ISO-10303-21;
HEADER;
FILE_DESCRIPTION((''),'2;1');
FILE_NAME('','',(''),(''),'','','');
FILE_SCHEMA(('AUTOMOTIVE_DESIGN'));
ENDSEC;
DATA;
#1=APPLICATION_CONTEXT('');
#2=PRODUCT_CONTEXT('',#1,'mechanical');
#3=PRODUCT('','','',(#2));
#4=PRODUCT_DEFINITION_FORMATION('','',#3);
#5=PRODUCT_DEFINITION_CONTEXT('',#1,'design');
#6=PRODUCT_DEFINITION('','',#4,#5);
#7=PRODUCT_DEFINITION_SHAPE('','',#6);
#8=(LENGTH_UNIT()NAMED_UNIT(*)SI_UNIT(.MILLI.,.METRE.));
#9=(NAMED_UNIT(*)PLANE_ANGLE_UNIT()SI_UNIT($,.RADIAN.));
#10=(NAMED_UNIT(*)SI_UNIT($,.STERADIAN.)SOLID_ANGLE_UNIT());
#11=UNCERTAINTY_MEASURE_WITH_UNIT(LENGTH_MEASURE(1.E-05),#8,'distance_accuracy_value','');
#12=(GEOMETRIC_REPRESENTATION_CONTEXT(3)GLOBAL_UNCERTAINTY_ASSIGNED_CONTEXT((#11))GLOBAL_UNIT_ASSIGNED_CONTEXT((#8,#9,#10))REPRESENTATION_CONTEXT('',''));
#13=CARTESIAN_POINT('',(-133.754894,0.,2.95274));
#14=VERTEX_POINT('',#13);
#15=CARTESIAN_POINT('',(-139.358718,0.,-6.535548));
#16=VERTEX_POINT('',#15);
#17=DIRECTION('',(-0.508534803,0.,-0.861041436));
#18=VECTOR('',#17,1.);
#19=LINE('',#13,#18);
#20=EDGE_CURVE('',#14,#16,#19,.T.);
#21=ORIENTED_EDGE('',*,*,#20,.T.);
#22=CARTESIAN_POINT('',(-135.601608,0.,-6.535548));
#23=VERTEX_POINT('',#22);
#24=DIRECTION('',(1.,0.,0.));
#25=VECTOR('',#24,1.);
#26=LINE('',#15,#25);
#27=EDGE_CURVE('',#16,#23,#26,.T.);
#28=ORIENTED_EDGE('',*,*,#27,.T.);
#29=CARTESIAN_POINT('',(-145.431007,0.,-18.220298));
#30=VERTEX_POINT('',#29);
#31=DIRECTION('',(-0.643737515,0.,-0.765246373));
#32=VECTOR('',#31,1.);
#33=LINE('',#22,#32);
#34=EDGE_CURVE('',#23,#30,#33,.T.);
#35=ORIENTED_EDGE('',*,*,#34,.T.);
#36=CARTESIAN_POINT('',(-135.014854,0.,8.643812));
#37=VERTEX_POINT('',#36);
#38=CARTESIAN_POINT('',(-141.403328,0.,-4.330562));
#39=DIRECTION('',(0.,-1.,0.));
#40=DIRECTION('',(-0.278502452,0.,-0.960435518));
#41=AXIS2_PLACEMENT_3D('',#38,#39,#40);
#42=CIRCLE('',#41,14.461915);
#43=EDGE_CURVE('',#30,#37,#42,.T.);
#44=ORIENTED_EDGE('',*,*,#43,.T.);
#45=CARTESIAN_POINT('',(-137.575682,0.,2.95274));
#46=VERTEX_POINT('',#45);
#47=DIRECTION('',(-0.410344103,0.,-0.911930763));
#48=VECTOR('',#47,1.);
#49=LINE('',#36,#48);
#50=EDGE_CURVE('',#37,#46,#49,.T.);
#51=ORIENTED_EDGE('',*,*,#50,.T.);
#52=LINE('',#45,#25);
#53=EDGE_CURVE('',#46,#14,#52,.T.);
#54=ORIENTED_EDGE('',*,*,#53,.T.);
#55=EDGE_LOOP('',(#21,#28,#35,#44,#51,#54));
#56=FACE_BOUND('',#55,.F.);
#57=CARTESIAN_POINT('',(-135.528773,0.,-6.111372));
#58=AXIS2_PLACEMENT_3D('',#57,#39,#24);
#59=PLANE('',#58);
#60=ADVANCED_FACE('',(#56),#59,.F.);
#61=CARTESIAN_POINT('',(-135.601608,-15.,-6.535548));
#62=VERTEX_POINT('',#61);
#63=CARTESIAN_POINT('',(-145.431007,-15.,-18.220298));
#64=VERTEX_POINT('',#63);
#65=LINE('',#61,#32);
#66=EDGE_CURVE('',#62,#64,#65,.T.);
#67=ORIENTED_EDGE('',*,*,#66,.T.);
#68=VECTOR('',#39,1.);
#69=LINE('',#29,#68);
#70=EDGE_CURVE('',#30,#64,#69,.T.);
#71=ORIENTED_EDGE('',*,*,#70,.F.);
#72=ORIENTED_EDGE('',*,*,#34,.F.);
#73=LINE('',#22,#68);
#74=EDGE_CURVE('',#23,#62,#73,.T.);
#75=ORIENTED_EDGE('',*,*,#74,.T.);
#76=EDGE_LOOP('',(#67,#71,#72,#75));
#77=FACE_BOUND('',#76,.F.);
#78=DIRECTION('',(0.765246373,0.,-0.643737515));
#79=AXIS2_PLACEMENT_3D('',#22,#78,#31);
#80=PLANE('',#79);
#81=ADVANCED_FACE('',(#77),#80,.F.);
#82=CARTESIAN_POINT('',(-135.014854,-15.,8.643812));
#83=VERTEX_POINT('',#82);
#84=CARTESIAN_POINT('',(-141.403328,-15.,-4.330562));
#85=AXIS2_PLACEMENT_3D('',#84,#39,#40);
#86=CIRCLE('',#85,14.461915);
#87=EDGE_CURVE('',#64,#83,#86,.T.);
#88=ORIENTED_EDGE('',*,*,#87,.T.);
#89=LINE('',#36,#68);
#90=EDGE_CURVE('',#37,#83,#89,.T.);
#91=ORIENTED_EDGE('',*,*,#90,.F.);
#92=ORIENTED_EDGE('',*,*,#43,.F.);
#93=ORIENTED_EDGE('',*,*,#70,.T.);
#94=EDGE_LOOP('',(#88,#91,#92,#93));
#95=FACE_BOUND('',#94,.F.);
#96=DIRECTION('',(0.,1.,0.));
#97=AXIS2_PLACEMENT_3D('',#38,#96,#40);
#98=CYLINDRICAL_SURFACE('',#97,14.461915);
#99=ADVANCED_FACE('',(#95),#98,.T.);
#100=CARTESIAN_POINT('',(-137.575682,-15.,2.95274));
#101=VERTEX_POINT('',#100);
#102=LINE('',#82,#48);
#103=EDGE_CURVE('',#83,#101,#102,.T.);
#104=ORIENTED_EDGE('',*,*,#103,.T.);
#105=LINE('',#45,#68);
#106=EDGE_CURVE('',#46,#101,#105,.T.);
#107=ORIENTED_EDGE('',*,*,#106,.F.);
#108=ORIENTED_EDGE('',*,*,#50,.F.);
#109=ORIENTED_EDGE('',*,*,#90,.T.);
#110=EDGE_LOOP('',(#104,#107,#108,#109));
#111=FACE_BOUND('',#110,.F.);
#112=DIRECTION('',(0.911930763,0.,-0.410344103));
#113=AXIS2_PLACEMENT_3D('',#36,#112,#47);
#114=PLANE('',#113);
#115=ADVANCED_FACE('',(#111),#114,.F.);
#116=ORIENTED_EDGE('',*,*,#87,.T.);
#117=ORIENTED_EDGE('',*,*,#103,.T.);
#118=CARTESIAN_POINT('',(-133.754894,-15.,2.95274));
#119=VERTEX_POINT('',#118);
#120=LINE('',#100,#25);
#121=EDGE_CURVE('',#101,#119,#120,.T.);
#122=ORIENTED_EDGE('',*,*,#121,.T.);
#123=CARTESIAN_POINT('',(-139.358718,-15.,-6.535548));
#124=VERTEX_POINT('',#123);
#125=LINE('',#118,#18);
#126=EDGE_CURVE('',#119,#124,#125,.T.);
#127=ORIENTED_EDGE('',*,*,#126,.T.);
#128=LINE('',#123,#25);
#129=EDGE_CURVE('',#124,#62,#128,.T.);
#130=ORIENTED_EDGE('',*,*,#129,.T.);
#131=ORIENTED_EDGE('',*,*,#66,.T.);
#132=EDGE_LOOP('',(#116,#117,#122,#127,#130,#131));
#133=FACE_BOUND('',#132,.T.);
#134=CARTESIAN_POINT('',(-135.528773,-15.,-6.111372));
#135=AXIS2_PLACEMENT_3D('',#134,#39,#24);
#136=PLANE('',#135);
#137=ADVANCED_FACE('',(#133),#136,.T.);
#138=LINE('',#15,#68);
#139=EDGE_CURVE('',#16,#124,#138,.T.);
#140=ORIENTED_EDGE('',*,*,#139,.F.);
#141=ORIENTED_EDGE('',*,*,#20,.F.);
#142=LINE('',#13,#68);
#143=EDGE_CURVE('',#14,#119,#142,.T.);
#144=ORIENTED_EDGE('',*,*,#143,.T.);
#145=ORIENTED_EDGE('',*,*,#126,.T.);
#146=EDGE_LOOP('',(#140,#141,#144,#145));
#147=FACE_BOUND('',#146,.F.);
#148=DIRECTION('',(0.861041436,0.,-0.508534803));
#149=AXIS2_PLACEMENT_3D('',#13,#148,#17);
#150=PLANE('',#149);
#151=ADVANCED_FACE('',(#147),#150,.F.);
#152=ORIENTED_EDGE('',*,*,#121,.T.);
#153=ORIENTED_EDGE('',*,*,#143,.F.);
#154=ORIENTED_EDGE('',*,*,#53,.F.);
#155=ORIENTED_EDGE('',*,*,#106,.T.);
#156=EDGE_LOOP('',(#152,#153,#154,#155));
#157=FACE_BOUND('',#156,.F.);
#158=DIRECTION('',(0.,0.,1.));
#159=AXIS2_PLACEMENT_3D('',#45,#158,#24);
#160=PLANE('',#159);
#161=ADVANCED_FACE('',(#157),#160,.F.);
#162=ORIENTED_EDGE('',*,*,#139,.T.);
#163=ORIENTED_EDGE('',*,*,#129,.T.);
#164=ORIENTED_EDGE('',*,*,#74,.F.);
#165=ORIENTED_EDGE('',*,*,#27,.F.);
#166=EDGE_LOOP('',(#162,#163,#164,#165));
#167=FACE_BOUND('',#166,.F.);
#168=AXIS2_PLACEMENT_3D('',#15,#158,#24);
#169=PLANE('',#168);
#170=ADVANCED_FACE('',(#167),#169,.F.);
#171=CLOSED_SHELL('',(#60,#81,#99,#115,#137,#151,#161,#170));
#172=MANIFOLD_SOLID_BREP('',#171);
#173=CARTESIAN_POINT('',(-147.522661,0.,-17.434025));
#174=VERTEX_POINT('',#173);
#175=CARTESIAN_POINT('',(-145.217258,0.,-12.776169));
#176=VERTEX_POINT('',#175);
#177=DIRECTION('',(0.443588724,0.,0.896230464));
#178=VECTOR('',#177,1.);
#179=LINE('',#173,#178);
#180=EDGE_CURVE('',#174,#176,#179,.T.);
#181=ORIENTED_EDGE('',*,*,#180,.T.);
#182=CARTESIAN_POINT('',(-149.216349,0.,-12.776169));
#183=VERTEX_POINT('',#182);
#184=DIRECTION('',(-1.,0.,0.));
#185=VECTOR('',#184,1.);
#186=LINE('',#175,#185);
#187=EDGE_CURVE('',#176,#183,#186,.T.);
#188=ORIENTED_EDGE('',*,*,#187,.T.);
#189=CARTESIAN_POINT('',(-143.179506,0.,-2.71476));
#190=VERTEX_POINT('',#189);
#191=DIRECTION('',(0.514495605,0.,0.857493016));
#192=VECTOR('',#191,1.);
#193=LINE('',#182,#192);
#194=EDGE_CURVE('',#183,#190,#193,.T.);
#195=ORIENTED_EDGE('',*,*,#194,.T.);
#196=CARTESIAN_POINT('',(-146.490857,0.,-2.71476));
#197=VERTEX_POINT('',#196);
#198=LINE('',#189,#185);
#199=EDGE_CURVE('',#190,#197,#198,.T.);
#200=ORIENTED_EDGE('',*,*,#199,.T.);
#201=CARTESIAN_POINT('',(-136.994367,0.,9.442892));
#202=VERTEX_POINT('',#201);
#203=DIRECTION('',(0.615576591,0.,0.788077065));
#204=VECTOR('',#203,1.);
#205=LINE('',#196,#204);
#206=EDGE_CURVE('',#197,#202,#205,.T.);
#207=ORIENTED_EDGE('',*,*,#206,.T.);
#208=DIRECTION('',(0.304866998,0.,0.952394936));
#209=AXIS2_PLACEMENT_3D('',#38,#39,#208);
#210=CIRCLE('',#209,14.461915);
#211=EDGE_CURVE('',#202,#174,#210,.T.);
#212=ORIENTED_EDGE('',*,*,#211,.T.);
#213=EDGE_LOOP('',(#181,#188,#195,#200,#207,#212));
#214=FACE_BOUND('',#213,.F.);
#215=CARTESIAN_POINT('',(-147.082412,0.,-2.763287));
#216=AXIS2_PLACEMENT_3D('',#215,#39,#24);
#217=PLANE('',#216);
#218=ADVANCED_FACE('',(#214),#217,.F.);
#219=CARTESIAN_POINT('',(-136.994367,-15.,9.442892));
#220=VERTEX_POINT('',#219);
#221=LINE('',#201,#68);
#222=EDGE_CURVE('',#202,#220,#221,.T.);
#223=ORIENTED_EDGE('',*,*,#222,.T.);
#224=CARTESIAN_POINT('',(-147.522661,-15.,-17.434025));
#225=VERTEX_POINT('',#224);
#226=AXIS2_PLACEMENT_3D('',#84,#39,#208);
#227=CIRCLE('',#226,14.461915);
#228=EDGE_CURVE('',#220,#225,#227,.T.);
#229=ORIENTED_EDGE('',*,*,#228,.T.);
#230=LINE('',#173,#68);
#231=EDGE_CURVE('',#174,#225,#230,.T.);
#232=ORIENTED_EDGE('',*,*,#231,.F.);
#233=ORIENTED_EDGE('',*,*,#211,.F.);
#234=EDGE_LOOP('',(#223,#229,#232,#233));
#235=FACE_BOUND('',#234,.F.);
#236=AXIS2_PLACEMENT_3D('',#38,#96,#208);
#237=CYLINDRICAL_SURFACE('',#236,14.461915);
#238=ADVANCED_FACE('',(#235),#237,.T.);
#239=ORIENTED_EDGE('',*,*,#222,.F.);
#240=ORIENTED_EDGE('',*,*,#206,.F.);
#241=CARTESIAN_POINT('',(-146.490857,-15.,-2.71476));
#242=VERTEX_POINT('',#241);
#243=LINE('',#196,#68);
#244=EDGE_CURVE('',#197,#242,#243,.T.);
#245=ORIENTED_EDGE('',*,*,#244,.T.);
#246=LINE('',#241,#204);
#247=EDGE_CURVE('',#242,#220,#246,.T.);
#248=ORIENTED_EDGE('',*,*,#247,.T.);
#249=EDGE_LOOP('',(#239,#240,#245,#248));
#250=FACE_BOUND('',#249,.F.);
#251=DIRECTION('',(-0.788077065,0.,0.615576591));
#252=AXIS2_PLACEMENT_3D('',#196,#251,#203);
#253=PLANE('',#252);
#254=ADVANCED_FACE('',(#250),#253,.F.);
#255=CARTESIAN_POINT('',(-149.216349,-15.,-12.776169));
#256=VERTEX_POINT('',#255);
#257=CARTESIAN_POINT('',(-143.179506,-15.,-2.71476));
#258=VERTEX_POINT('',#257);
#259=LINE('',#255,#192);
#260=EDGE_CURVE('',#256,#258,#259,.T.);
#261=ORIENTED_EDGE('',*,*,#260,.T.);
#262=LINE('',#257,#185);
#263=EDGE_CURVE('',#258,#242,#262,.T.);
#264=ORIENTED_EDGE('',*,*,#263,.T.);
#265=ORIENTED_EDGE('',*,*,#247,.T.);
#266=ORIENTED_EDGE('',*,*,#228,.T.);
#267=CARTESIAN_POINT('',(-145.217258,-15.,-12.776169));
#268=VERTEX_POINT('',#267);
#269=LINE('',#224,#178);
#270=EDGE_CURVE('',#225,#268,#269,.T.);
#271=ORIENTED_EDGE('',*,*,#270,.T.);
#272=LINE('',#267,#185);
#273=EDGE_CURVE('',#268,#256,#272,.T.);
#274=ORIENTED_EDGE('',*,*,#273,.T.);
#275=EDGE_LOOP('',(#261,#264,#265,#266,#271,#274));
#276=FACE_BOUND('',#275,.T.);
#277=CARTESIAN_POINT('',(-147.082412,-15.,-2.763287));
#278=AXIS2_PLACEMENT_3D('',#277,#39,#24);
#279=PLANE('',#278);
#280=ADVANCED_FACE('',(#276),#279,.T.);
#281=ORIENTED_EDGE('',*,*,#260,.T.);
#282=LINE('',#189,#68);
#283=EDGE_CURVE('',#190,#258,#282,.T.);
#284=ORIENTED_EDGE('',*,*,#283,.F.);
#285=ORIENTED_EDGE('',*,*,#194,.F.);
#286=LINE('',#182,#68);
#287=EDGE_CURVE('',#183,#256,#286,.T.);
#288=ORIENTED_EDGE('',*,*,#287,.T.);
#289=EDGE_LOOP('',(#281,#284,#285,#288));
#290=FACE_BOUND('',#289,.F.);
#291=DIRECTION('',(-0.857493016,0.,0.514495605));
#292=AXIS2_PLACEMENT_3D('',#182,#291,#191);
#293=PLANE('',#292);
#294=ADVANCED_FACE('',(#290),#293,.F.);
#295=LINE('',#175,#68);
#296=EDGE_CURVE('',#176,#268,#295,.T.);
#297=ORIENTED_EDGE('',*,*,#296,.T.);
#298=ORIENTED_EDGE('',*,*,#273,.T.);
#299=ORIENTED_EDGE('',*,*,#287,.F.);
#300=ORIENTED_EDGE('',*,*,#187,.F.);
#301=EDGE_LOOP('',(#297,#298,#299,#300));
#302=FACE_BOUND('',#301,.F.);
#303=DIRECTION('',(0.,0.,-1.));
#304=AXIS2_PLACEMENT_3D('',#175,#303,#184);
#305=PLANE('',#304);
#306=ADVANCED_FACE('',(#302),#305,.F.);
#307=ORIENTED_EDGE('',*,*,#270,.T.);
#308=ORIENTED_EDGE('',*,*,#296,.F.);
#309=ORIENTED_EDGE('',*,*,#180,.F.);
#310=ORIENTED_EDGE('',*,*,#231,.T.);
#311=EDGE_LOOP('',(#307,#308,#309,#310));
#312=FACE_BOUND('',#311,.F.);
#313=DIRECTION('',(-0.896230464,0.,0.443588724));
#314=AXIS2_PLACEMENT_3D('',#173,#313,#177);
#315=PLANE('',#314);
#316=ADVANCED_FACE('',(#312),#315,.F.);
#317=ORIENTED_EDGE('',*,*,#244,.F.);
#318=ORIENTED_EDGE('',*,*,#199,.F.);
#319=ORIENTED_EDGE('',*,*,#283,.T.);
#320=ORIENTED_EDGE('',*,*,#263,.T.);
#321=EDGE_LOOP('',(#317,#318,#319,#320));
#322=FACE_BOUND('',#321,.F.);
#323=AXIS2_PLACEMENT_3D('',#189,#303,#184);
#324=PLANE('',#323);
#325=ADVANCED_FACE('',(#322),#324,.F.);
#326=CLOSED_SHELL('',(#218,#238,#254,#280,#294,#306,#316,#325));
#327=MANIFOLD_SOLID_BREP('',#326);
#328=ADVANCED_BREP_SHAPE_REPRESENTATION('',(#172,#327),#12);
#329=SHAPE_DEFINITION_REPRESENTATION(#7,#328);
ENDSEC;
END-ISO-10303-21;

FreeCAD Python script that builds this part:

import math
import FreeCAD as App
import Part
import Sketcher
from FreeCAD import Vector
Q = App.Units.Quantity

doc = App.newDocument("Part")
params = doc.addObject("Spreadsheet::Sheet", "Params")
for row, (alias, value) in enumerate([
    ("pad1_length", "15 mm"),
], start=1):
    params.set(f"A{row}", alias)
    params.set(f"B{row}", "=" + value)
    params.setAlias(f"B{row}", alias)

body = doc.addObject("PartDesign::Body", "Body")
body.AllowCompound = True

sketch1 = body.newObject("Sketcher::SketchObject", "Sketch")
sketch1.AttachmentSupport = (doc.getObject("XZ_Plane"), [""])
sketch1.MapMode = "FlatFace"
sketch1.addGeometry(Part.LineSegment(Vector(-146.490857, -2.71476, 0), Vector(-136.994367, 9.442892, 0)), False)
sketch1.addGeometry(Part.ArcOfCircle(Part.Circle(Vector(-141.403328, -4.330562, 0), Vector(0, 0, 1), 14.461915), math.radians(72.249838), math.radians(244.967366)), False)
sketch1.addGeometry(Part.LineSegment(Vector(-147.522661, -17.434025, 0), Vector(-145.217258, -12.776169, 0)), False)
sketch1.addGeometry(Part.LineSegment(Vector(-145.217258, -12.776169, 0), Vector(-149.216349, -12.776169, 0)), False)
sketch1.addGeometry(Part.LineSegment(Vector(-149.216349, -12.776169, 0), Vector(-143.179506, -2.71476, 0)), False)
sketch1.addGeometry(Part.LineSegment(Vector(-143.179506, -2.71476, 0), Vector(-146.490857, -2.71476, 0)), False)
sketch1.addGeometry(Part.ArcOfCircle(Part.Circle(Vector(-141.403328, -4.330562, 0), Vector(0, 0, 1), 14.461915), math.radians(-106.170847), math.radians(63.784746)), False)
sketch1.addGeometry(Part.LineSegment(Vector(-135.014854, 8.643812, 0), Vector(-137.575682, 2.95274, 0)), False)
sketch1.addGeometry(Part.LineSegment(Vector(-137.575682, 2.95274, 0), Vector(-133.754894, 2.95274, 0)), False)
sketch1.addGeometry(Part.LineSegment(Vector(-133.754894, 2.95274, 0), Vector(-139.358718, -6.535548, 0)), False)
sketch1.addGeometry(Part.LineSegment(Vector(-139.358718, -6.535548, 0), Vector(-135.601608, -6.535548, 0)), False)
sketch1.addGeometry(Part.LineSegment(Vector(-135.601608, -6.535548, 0), Vector(-145.431007, -18.220298, 0)), False)
sketch1.addConstraint(Sketcher.Constraint("Coincident", 0, 2, 1, 1))
sketch1.addConstraint(Sketcher.Constraint("Coincident", 1, 2, 2, 1))
sketch1.addConstraint(Sketcher.Constraint("Coincident", 2, 2, 3, 1))
sketch1.addConstraint(Sketcher.Constraint("Coincident", 3, 2, 4, 1))
sketch1.addConstraint(Sketcher.Constraint("Coincident", 4, 2, 5, 1))
sketch1.addConstraint(Sketcher.Constraint("Coincident", 5, 2, 0, 1))
sketch1.addConstraint(Sketcher.Constraint("Coincident", 6, 2, 7, 1))
sketch1.addConstraint(Sketcher.Constraint("Coincident", 7, 2, 8, 1))
sketch1.addConstraint(Sketcher.Constraint("Coincident", 8, 2, 9, 1))
sketch1.addConstraint(Sketcher.Constraint("Coincident", 9, 2, 10, 1))
sketch1.addConstraint(Sketcher.Constraint("Coincident", 10, 2, 11, 1))
sketch1.addConstraint(Sketcher.Constraint("Coincident", 11, 2, 6, 1))
sketch1.addConstraint(Sketcher.Constraint("Horizontal", 3))
sketch1.addConstraint(Sketcher.Constraint("Horizontal", 5))
sketch1.addConstraint(Sketcher.Constraint("Horizontal", 8))
sketch1.addConstraint(Sketcher.Constraint("Horizontal", 10))
sketch1.addConstraint(Sketcher.Constraint("Coincident", 6, 3, 1, 3))
sketch1.addConstraint(Sketcher.Constraint("Equal", 1, 6))
sketch1.addConstraint(Sketcher.Constraint("Radius", 1, Q("14.461915 mm")))
sketch1.addConstraint(Sketcher.Constraint("DistanceX", 3, 2, 3, 1, Q("3.999091 mm")))
sketch1.addConstraint(Sketcher.Constraint("DistanceX", 5, 2, 5, 1, Q("3.311351 mm")))
sketch1.addConstraint(Sketcher.Constraint("DistanceX", 10, 1, 10, 2, Q("3.75711 mm")))
sketch1.addConstraint(Sketcher.Constraint("DistanceY", 6, 3, 4, 2, Q("1.615802 mm")))
sketch1.addConstraint(Sketcher.Constraint("DistanceX", 5, 2, 2, 2, Q("1.273599 mm")))
sketch1.addConstraint(Sketcher.Constraint("DistanceY", 4, 2, 7, 2, Q("5.6675 mm")))
sketch1.addConstraint(Sketcher.Constraint("DistanceX", 4, 2, 10, 2, Q("7.577898 mm")))
sketch1.addConstraint(Sketcher.Constraint("Distance", 9, Q("11.019549 mm")))
sketch1.addConstraint(Sketcher.Constraint("DistanceX", 8, 1, 8, 2, Q("3.820788 mm")))
sketch1.addConstraint(Sketcher.Constraint("DistanceX", 6, 3, -1, 1, Q("141.403328 mm")))
sketch1.addConstraint(Sketcher.Constraint("DistanceY", 6, 3, -1, 1, Q("4.330562 mm")))
sketch1.addConstraint(Sketcher.Constraint("DistanceX", 1, 2, -1, 1, Q("147.522661 mm")))
sketch1.addConstraint(Sketcher.Constraint("DistanceY", 2, 2, -1, 1, Q("12.776169 mm")))
sketch1.addConstraint(Sketcher.Constraint("DistanceX", 3, 2, -1, 1, Q("149.216349 mm")))
sketch1.addConstraint(Sketcher.Constraint("DistanceX", 7, 2, -1, 1, Q("137.575682 mm")))
sketch1.addConstraint(Sketcher.Constraint("DistanceX", 6, 3, 0, 2, Q("4.408961 mm")))
sketch1.addConstraint(Sketcher.Constraint("DistanceY", 6, 2, 0, 2, Q("0.79908 mm")))
sketch1.addConstraint(Sketcher.Constraint("DistanceX", 11, 2, 2, 2, Q("0.213749 mm")))
pad1 = body.newObject("PartDesign::Pad", "Pad")
pad1.Profile = sketch1
pad1.setExpression("Length", "Params.pad1_length")

doc.recompute()
